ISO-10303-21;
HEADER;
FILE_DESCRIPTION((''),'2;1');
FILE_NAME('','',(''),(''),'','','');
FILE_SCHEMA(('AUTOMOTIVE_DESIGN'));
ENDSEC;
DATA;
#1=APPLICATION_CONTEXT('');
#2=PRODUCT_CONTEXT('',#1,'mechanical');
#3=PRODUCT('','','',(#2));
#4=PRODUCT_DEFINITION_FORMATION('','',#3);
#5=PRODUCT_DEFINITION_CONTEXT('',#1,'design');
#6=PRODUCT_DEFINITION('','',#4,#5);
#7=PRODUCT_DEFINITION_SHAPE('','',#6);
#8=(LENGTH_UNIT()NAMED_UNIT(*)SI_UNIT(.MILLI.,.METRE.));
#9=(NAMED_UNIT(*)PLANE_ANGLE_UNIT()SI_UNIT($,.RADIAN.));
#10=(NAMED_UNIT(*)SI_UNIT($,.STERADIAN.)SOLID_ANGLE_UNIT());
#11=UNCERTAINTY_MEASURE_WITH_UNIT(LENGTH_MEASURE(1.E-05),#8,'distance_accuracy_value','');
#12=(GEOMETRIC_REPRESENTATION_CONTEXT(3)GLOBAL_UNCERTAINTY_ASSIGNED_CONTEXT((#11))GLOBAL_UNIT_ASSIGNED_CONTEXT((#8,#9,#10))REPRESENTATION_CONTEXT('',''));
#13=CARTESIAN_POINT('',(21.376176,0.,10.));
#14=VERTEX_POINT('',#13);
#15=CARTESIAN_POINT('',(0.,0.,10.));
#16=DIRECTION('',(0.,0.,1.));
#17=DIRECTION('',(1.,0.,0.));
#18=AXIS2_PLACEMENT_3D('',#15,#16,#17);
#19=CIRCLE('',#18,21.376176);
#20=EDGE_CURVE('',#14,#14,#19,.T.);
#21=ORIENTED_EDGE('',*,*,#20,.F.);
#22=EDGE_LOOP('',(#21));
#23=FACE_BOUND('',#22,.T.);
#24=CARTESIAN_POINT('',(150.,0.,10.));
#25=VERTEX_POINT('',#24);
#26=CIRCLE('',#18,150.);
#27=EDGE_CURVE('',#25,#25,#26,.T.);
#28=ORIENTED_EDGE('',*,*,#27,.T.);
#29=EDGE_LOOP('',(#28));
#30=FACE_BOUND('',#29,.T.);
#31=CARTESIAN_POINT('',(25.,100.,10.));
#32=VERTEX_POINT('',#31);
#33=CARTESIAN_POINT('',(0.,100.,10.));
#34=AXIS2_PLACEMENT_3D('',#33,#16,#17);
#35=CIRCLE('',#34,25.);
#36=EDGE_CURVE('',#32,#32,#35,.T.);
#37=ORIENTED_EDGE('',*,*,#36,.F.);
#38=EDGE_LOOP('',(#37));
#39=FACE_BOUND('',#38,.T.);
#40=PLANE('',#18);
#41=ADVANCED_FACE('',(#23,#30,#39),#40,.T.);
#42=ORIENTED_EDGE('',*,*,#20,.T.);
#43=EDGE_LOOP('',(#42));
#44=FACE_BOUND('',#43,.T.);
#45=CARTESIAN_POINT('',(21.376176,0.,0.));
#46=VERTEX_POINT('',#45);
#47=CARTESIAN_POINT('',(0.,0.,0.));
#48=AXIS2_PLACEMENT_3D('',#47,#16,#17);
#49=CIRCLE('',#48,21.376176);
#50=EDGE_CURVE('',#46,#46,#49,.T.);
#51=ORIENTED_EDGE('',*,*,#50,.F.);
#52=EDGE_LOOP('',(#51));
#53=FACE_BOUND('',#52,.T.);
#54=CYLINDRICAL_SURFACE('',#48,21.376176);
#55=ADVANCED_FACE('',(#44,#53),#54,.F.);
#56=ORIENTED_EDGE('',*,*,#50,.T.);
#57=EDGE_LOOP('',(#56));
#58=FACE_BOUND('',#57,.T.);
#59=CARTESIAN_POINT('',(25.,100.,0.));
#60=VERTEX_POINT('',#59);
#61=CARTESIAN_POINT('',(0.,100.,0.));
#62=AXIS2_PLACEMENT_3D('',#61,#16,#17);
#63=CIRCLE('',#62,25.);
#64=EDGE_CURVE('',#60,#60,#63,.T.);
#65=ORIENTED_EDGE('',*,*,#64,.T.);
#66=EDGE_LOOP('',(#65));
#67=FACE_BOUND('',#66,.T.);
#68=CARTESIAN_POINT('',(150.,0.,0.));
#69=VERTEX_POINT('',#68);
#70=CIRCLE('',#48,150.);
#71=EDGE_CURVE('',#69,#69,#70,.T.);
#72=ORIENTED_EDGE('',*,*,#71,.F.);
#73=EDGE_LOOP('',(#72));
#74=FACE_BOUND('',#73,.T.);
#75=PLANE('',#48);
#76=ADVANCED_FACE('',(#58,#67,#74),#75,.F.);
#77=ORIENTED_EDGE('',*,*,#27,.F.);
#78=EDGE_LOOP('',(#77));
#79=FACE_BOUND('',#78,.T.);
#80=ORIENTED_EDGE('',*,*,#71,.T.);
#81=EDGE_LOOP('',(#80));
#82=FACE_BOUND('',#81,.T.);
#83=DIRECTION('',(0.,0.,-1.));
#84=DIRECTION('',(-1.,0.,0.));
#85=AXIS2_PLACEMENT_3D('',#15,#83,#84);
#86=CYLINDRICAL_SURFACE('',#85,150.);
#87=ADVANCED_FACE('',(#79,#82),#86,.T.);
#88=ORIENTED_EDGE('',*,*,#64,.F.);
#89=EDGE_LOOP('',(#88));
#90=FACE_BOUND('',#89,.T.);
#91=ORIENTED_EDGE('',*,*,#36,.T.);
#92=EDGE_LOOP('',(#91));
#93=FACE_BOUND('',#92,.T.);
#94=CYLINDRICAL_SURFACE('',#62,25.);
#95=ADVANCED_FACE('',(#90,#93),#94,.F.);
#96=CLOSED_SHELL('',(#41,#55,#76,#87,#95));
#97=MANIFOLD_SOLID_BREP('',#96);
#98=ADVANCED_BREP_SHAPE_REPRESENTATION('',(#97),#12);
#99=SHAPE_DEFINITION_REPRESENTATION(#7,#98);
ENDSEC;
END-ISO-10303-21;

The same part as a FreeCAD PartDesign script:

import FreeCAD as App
import Part
import Sketcher

doc = App.newDocument("Part")
params = doc.addObject("Spreadsheet::Sheet", "Params")
for row, (alias, value) in enumerate([
    ("sketch1_diameter", "300 mm"),
    ("pad1_length", "10 mm"),
    ("sketch2_diameter", "50 mm"),
    ("pocket1_length", "10 mm"),
], start=1):
    params.set(f"A{row}", alias)
    params.set(f"B{row}", "=" + value)
    params.setAlias(f"B{row}", alias)

body = doc.addObject("PartDesign::Body", "Body")

sketch1 = body.newObject("Sketcher::SketchObject", "Sketch")
sketch1.AttachmentSupport = (doc.getObject("XY_Plane"), [""])
sketch1.MapMode = "FlatFace"
sketch1.addGeometry(Part.Circle(App.Vector(0, 0, 0), App.Vector(0, 0, 1), 150), False)
sketch1.addConstraint(Sketcher.Constraint("Coincident", 0, 3, -1, 1))
sketch1.addConstraint(Sketcher.Constraint("Diameter", 0, 300.0))
sketch1.setExpression("Constraints[1]", "Params.sketch1_diameter")
pad1 = body.newObject("PartDesign::Pad", "Pad")
pad1.Profile = sketch1
pad1.setExpression("Length", "Params.pad1_length")

sketch2 = body.newObject("Sketcher::SketchObject", "Sketch001")
sketch2.AttachmentSupport = (doc.getObject("XY_Plane"), [""])
sketch2.MapMode = "FlatFace"
sketch2.AttachmentOffset = App.Placement(App.Vector(0, 0, 10), App.Rotation())
sketch2.addGeometry(Part.Circle(App.Vector(0, 0, 0), App.Vector(0, 0, 1), 21.376176), False)
sketch2.addGeometry(Part.Circle(App.Vector(0, 100, 0), App.Vector(0, 0, 1), 25), False)
sketch2.addConstraint(Sketcher.Constraint("Coincident", 0, 3, -1, 1))
sketch2.addConstraint(Sketcher.Constraint("PointOnObject", 1, 3, -2))
sketch2.addConstraint(Sketcher.Constraint("Diameter", 1, 50.0))
sketch2.addConstraint(Sketcher.Constraint("DistanceY", -1, 1, 1, 3, 100.0))
sketch2.addConstraint(Sketcher.Constraint("Diameter", 0, 42.752353))
sketch2.setExpression("Constraints[2]", "Params.sketch2_diameter")
pocket1 = body.newObject("PartDesign::Pocket", "Pocket")
pocket1.Profile = sketch2
pocket1.setExpression("Length", "Params.pocket1_length")

doc.recompute()
